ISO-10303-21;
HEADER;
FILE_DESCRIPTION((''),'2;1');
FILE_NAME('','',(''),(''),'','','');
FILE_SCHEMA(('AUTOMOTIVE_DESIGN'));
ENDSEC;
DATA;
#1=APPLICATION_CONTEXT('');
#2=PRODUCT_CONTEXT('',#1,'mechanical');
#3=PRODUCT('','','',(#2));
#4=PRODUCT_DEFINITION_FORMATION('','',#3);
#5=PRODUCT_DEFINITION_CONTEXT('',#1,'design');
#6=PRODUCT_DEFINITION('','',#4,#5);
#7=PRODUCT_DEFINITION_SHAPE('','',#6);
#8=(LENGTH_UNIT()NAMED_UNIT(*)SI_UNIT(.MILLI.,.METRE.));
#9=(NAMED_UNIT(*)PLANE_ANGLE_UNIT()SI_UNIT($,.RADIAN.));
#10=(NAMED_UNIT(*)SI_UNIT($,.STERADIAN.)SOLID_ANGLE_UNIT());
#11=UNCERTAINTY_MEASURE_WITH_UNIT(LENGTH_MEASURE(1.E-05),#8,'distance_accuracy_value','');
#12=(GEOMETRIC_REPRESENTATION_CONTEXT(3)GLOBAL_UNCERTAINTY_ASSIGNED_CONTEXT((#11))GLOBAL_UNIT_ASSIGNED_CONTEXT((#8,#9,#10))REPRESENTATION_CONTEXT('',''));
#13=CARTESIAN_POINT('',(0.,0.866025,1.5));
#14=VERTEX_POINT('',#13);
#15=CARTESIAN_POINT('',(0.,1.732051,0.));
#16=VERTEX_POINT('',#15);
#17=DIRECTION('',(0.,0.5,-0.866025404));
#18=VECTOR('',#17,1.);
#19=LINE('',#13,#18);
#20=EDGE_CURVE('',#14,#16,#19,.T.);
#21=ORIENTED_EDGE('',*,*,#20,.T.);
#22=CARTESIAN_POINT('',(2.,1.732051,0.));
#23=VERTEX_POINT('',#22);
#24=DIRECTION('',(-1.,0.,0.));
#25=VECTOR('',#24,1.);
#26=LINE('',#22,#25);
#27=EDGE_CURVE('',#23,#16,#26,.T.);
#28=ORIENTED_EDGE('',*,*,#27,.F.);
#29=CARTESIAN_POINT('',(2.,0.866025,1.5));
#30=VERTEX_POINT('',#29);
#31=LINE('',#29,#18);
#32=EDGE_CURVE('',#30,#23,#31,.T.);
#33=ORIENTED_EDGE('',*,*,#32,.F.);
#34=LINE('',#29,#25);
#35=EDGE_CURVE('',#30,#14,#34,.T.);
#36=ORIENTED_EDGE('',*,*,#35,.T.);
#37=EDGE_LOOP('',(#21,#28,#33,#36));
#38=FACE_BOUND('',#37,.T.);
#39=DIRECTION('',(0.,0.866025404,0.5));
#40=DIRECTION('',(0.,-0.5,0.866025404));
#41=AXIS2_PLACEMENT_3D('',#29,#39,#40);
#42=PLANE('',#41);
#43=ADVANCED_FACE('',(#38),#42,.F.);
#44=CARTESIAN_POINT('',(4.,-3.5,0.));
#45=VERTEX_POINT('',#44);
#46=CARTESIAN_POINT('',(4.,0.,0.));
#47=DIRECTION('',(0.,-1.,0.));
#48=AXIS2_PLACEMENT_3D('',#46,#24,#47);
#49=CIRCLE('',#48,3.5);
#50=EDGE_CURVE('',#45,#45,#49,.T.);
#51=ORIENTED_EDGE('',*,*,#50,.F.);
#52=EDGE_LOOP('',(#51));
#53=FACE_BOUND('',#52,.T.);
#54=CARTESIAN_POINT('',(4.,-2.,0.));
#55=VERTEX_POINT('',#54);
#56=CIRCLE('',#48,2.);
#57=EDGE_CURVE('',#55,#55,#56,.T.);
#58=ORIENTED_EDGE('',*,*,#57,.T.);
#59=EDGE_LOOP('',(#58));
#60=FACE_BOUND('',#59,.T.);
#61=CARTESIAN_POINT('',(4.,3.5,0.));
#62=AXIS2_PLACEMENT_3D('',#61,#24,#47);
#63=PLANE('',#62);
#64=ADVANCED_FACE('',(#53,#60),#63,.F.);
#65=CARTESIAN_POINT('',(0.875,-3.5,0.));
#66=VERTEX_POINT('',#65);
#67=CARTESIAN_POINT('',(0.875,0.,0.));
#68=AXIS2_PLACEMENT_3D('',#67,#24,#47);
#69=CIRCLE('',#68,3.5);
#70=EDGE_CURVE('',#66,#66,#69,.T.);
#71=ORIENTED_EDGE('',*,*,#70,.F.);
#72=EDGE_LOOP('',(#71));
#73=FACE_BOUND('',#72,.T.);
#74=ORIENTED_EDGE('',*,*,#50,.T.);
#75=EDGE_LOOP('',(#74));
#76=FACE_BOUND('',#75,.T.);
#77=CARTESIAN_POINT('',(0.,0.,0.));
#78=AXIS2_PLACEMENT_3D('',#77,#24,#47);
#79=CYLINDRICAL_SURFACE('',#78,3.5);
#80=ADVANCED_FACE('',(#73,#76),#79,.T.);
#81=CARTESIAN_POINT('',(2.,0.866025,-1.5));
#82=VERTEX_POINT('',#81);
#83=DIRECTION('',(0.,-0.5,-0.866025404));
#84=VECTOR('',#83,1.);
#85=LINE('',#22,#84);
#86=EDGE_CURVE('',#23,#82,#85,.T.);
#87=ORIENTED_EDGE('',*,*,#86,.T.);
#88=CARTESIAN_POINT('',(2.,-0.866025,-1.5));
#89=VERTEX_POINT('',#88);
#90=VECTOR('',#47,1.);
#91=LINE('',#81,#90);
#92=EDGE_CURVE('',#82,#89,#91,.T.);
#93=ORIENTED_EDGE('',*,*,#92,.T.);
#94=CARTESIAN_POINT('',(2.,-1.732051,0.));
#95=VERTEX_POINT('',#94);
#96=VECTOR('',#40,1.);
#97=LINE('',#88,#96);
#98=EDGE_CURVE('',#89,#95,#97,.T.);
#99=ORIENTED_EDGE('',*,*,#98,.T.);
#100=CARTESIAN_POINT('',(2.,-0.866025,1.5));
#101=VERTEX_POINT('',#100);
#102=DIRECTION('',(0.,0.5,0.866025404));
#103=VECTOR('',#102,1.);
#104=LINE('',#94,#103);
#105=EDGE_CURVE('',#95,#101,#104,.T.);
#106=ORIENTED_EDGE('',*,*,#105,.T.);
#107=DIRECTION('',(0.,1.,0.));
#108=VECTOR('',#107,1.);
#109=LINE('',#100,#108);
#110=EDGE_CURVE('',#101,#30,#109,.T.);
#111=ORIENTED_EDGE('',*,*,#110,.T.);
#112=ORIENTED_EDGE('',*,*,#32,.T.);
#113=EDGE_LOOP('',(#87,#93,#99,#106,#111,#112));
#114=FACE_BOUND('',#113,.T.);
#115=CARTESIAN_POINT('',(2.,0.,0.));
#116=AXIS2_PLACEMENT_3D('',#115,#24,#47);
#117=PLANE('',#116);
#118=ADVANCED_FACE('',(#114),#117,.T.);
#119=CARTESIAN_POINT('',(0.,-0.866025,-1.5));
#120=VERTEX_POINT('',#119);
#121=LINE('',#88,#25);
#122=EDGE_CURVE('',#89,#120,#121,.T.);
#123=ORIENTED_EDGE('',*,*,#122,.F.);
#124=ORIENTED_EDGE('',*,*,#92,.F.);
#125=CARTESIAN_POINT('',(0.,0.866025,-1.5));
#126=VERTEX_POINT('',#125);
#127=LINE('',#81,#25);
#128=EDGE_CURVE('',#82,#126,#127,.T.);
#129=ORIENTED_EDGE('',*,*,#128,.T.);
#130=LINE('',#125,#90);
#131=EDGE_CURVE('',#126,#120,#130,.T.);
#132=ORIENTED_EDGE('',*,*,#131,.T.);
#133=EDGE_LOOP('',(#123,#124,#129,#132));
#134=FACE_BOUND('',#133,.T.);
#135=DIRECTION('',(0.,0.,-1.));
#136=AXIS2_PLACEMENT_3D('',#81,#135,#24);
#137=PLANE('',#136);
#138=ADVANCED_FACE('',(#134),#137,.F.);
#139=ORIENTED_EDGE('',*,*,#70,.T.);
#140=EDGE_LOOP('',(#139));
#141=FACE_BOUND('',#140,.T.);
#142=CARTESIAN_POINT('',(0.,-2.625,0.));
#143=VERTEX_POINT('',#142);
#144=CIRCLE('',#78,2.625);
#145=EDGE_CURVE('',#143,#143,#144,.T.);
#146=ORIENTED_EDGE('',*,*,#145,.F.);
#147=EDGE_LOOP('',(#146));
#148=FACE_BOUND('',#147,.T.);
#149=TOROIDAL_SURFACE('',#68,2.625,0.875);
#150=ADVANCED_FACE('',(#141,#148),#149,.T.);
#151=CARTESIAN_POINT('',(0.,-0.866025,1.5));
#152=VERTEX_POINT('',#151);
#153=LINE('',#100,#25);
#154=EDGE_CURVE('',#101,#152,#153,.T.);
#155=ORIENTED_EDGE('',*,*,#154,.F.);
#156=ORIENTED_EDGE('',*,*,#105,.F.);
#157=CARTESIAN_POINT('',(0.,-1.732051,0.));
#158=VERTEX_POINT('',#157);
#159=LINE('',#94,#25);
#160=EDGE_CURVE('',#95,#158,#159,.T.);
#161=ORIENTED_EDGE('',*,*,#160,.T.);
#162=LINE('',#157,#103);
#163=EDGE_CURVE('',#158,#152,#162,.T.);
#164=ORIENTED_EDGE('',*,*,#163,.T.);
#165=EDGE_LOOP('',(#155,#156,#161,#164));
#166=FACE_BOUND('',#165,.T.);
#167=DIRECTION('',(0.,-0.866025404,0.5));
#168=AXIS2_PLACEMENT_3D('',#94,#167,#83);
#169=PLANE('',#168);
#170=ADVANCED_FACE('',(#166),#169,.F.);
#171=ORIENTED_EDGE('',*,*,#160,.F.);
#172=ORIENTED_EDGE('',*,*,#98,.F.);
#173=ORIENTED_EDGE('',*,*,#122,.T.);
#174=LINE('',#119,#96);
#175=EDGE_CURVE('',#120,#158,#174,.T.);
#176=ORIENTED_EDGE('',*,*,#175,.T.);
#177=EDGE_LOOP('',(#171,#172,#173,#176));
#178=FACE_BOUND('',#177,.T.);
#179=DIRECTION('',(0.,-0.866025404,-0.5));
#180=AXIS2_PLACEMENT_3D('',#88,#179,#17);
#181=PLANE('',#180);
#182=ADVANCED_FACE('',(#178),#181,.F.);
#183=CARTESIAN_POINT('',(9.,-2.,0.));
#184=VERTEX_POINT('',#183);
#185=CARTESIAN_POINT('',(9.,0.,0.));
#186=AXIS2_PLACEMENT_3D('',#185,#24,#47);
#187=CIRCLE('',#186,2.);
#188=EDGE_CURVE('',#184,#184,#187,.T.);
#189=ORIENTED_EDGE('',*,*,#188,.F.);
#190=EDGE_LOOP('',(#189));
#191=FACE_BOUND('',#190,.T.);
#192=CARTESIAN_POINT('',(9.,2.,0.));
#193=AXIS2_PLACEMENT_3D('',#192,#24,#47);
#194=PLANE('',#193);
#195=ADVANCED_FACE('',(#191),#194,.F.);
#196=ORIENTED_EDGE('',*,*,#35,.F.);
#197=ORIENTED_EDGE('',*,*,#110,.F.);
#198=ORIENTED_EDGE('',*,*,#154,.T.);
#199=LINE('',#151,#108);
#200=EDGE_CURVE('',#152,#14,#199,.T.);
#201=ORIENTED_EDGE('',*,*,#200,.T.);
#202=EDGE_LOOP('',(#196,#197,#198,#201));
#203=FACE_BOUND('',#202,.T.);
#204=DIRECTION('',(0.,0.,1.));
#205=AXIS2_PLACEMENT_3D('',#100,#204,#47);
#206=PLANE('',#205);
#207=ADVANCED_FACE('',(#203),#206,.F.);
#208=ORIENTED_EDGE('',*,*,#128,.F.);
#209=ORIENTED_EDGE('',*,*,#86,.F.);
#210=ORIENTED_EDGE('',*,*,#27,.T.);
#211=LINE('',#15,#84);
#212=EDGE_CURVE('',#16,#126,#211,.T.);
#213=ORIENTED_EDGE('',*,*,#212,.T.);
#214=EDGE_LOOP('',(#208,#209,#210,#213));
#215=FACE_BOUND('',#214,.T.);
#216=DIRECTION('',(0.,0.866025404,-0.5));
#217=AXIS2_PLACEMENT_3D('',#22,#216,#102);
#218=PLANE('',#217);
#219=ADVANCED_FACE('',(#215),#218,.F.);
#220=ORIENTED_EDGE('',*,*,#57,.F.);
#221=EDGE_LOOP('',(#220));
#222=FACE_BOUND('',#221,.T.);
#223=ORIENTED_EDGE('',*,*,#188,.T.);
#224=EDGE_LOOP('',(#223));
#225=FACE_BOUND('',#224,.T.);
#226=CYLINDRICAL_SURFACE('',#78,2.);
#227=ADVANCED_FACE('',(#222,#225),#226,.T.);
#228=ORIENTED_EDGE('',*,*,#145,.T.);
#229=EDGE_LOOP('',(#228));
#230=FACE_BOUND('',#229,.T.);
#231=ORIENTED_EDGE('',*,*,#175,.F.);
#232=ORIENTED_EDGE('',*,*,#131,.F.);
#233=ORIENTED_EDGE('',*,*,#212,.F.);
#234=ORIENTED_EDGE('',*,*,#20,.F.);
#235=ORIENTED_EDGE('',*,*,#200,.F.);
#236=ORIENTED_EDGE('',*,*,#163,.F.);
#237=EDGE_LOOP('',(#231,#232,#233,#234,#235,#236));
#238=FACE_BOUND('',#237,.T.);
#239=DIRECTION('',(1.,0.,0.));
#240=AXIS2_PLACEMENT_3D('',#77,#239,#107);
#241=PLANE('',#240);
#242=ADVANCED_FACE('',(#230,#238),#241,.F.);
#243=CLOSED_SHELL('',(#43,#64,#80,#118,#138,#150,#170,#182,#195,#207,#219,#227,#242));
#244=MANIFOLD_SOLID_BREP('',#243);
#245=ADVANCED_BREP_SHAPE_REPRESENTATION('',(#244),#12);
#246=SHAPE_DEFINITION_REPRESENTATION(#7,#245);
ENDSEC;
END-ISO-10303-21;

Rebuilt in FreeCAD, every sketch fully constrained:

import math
import FreeCAD as App
import Part
import Sketcher

V = App.Vector
Q = App.Units.Quantity

doc = App.newDocument("Part")
body = doc.addObject("PartDesign::Body", "Body")

# Sketch on XY plane
sketch1 = body.newObject("Sketcher::SketchObject", "Sketch")
sketch1.AttachmentSupport = (doc.getObject("XY_Plane"), [""])
sketch1.MapMode = "FlatFace"
sketch1.addGeometry([
    Part.LineSegment(V(0, 2.625, 0), V(0, 0, 0)),  # 0
    Part.LineSegment(V(0, 0, 0), V(9, 0, 0)),  # 1
    Part.LineSegment(V(9, 0, 0), V(9, 2, 0)),  # 2
    Part.LineSegment(V(9, 2, 0), V(4, 2, 0)),  # 3
    Part.LineSegment(V(4, 2, 0), V(4, 3.5, 0)),  # 4
    Part.LineSegment(V(4, 3.5, 0), V(0.875, 3.5, 0)),  # 5
    Part.ArcOfCircle(Part.Circle(V(0.875, 2.625, 0), V(0, 0, 1), 0.875), math.radians(90), math.radians(180)),  # 6
], False)
sketch1.addConstraint([
    Sketcher.Constraint("Coincident", 0, 2, 1, 1),
    Sketcher.Constraint("Coincident", 1, 2, 2, 1),
    Sketcher.Constraint("Coincident", 2, 2, 3, 1),
    Sketcher.Constraint("Coincident", 3, 2, 4, 1),
    Sketcher.Constraint("Coincident", 4, 2, 5, 1),
    Sketcher.Constraint("Tangent", 5, 2, 6, 1),
    Sketcher.Constraint("Tangent", 6, 2, 0, 1),
    Sketcher.Constraint("Vertical", 0),
    Sketcher.Constraint("Horizontal", 1),
    Sketcher.Constraint("Vertical", 2),
    Sketcher.Constraint("Horizontal", 3),
    Sketcher.Constraint("Vertical", 4),
    Sketcher.Constraint("Horizontal", 5),
    Sketcher.Constraint("Coincident", 0, 2, -1, 1),
    Sketcher.Constraint("DistanceX", 1, 1, 1, 2, Q("9 mm")),
    Sketcher.Constraint("DistanceX", 3, 2, 3, 1, Q("5 mm")),
    Sketcher.Constraint("DistanceY", 2, 1, 2, 2, Q("2 mm")),
    Sketcher.Constraint("DistanceY", 4, 1, 4, 2, Q("1.5 mm")),
    Sketcher.Constraint("Radius", 6, Q("0.875 mm")),
])
revolution = body.newObject("PartDesign::Revolution", "Revolution")
revolution.Profile = sketch1
revolution.ReferenceAxis = (sketch1, ["H_Axis"])
revolution.Angle = 360

# Sketch on YZ plane
sketch2 = body.newObject("Sketcher::SketchObject", "Sketch001")
sketch2.AttachmentSupport = (doc.getObject("YZ_Plane"), [""])
sketch2.MapMode = "FlatFace"
sketch2.addGeometry([
    Part.LineSegment(V(1.732051, 0, 0), V(0.866025, -1.5, 0)),  # 0
    Part.LineSegment(V(0.866025, -1.5, 0), V(-0.866025, -1.5, 0)),  # 1
    Part.LineSegment(V(-0.866025, -1.5, 0), V(-1.732051, 0, 0)),  # 2
    Part.LineSegment(V(-1.732051, 0, 0), V(-0.866025, 1.5, 0)),  # 3
    Part.LineSegment(V(-0.866025, 1.5, 0), V(0.866025, 1.5, 0)),  # 4
    Part.LineSegment(V(0.866025, 1.5, 0), V(1.732051, 0, 0)),  # 5
], False)
sketch2.addConstraint([
    Sketcher.Constraint("Coincident", 0, 2, 1, 1),
    Sketcher.Constraint("Coincident", 1, 2, 2, 1),
    Sketcher.Constraint("Coincident", 2, 2, 3, 1),
    Sketcher.Constraint("Coincident", 3, 2, 4, 1),
    Sketcher.Constraint("Coincident", 4, 2, 5, 1),
    Sketcher.Constraint("Coincident", 5, 2, 0, 1),
    Sketcher.Constraint("Horizontal", 1),
    Sketcher.Constraint("Horizontal", 4),
    Sketcher.Constraint("Symmetric", 0, 2, 3, 2, -1, 1),
    Sketcher.Constraint("Symmetric", 2, 2, 5, 2, -1, 1),
    Sketcher.Constraint("PointOnObject", 2, 2, -1),
    Sketcher.Constraint("Parallel", 2, 5),
    Sketcher.Constraint("Vertical", 1, 2, 3, 2),
    Sketcher.Constraint("Angle", 0, Q("-120 deg")),
    Sketcher.Constraint("DistanceY", 1, 2, 3, 2, Q("3 mm")),
    Sketcher.Constraint("DistanceX", 1, 2, 1, 1, Q("1.732051 mm")),
])
pocket1 = body.newObject("PartDesign::Pocket", "Pocket")
pocket1.Profile = sketch2
pocket1.Length = 2
pocket1.Reversed = True

doc.recompute()
